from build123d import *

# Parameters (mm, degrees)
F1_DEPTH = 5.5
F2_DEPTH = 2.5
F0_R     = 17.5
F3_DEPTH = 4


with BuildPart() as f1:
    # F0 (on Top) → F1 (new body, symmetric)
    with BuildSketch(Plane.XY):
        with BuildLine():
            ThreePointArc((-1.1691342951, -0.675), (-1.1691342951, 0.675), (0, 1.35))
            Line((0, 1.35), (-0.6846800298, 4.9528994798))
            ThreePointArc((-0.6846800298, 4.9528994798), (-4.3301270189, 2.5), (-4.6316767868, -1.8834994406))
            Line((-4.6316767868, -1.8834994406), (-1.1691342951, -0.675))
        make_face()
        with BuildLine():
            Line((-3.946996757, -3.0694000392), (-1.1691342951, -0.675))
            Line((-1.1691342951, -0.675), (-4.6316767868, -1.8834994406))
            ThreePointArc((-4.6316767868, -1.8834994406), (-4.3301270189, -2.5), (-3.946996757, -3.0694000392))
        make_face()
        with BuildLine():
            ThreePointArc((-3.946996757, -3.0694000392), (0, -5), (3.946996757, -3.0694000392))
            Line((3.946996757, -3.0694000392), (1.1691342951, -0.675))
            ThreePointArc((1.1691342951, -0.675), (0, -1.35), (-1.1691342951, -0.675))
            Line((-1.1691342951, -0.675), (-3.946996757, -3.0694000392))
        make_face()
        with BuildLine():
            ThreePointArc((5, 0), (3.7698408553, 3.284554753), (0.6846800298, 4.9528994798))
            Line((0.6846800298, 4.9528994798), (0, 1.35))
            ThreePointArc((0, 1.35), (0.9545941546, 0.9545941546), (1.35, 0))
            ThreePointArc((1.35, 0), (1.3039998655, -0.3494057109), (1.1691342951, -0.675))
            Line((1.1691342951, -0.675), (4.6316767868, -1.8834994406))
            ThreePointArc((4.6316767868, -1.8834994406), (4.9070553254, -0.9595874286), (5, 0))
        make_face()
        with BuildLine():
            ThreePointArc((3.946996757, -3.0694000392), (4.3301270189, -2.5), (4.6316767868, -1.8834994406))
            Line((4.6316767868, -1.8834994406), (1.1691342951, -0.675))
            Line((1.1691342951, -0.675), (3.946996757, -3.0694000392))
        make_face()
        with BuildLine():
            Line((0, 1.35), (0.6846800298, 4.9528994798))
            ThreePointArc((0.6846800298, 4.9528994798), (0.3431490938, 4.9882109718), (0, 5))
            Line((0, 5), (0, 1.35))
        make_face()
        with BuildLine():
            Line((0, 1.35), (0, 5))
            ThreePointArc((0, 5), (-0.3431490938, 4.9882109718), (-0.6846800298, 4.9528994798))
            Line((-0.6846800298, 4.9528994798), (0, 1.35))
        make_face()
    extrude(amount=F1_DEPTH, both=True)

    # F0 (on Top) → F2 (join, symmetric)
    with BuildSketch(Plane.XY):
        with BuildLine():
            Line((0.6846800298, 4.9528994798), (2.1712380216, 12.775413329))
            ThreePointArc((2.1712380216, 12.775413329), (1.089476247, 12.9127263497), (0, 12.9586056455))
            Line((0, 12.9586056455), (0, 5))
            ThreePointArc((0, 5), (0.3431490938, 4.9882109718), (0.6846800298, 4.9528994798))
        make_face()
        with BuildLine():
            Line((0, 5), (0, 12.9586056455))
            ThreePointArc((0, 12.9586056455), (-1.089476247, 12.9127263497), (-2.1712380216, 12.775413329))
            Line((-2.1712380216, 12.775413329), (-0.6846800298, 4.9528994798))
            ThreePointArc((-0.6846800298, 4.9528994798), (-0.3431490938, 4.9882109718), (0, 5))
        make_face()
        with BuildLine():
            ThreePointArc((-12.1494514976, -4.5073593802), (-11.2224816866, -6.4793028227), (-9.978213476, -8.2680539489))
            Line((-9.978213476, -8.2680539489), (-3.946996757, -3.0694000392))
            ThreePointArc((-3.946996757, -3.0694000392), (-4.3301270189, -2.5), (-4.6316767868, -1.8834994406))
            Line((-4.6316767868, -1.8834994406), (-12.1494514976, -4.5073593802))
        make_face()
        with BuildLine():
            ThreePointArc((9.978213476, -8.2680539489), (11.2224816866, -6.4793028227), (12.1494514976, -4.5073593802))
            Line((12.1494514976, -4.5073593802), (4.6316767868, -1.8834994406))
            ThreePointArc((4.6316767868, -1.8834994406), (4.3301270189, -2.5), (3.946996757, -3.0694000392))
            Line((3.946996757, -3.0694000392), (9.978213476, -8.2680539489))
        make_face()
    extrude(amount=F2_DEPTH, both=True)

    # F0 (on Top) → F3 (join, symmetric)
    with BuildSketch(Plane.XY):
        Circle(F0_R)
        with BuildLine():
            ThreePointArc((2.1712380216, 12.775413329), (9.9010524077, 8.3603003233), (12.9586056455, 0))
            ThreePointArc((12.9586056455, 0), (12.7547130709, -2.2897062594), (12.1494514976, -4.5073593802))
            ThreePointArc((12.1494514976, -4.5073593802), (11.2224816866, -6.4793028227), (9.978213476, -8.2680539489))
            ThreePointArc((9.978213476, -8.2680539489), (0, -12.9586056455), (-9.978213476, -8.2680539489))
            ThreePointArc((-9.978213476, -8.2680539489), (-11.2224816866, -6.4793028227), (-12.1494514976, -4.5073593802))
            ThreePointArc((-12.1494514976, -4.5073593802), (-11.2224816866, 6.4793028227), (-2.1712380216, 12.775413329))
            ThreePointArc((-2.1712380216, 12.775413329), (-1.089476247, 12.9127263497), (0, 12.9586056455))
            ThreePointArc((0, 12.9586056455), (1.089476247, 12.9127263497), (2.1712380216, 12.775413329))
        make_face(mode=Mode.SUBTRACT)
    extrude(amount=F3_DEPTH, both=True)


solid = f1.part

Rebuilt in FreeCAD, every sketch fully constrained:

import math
import FreeCAD as App
import Part
import Sketcher
from FreeCAD import Vector

doc = App.newDocument("Part")
params = doc.addObject("Spreadsheet::Sheet", "Params")
for row, (alias, value) in enumerate([
    ("sketch1_radius", "5 mm"),
    ("sketch1_radius2", "1.35 mm"),
    ("pad1_length", "11 mm"),
    ("sketch2_radius", "5 mm"),
    ("pad2_length", "5 mm"),
    ("sketch3_diameter", "35 mm"),
    ("pad3_length", "8 mm"),
], start=1):
    params.set(f"A{row}", alias)
    params.set(f"B{row}", "=" + value)
    params.setAlias(f"B{row}", alias)

body = doc.addObject("PartDesign::Body", "Body")

# Sketch on XY plane
sketch1 = doc.addObject("Sketcher::SketchObject", "Sketch")
body.addObject(sketch1)
sketch1.AttachmentSupport = (doc.XY_Plane, [""])
sketch1.MapMode = "FlatFace"
sketch1.addGeometry([
    Part.ArcOfCircle(Part.Circle(Vector(0, 0, 0), Vector(0, 0, 1), 5), math.radians(82.13), math.radians(90)),  # 0
    Part.ArcOfCircle(Part.Circle(Vector(0, 0, 0), Vector(0, 0, 1), 5), math.radians(90), math.radians(97.87)),  # 1
    Part.ArcOfCircle(Part.Circle(Vector(0, 0, 0), Vector(0, 0, 1), 5), math.radians(98), math.radians(202)),  # 2
    Part.ArcOfCircle(Part.Circle(Vector(0, 0, 0), Vector(0, 0, 1), 5), math.radians(-157.87), math.radians(-142.13)),  # 3
    Part.ArcOfCircle(Part.Circle(Vector(0, 0, 0), Vector(0, 0, 1), 5), math.radians(-142), math.radians(-38)),  # 4
    Part.ArcOfCircle(Part.Circle(Vector(0, 0, 0), Vector(0, 0, 1), 5), math.radians(-37.87), math.radians(-22.13)),  # 5
    Part.ArcOfCircle(Part.Circle(Vector(0, 0, 0), Vector(0, 0, 1), 5), math.radians(-22), math.radians(0)),  # 6
    Part.ArcOfCircle(Part.Circle(Vector(0, 0, 0), Vector(0, 0, 1), 5), math.radians(0), math.radians(82)),  # 7
    Part.ArcOfCircle(Part.Circle(Vector(0, 0, 0), Vector(0, 0, 1), 1.4), math.radians(90), math.radians(210)),  # 8
    Part.ArcOfCircle(Part.Circle(Vector(0, 0, 0), Vector(0, 0, 1), 1.4), math.radians(0), math.radians(90)),  # 9
    Part.ArcOfCircle(Part.Circle(Vector(0, 0, 0), Vector(0, 0, 1), 1.4), math.radians(-30), math.radians(0)),  # 10
    Part.ArcOfCircle(Part.Circle(Vector(0, 0, 0), Vector(0, 0, 1), 1.4), math.radians(-150), math.radians(-30)),  # 11
], False)
sketch1.addConstraint([
    Sketcher.Constraint("Tangent", 0, 2, 1, 1),
    Sketcher.Constraint("Tangent", 1, 2, 2, 1),
    Sketcher.Constraint("Tangent", 2, 2, 3, 1),
    Sketcher.Constraint("Tangent", 3, 2, 4, 1),
    Sketcher.Constraint("Tangent", 4, 2, 5, 1),
    Sketcher.Constraint("Tangent", 5, 2, 6, 1),
    Sketcher.Constraint("Tangent", 6, 2, 7, 1),
    Sketcher.Constraint("Tangent", 7, 2, 0, 1),
    Sketcher.Constraint("Tangent", 8, 1, 9, 2),
    Sketcher.Constraint("Tangent", 9, 1, 10, 2),
    Sketcher.Constraint("Tangent", 10, 1, 11, 2),
    Sketcher.Constraint("Tangent", 11, 1, 8, 2),
    Sketcher.Constraint("Coincident", 0, 3, -1, 1),
    Sketcher.Constraint("Coincident", 2, 3, -1, 1),
    Sketcher.Constraint("Coincident", 4, 3, -1, 1),
    Sketcher.Constraint("Coincident", 8, 3, -1, 1),
    Sketcher.Constraint("Equal", 4, 5),
    Sketcher.Constraint("Equal", 8, 9),
    Sketcher.Constraint("PointOnObject", 0, 2, -2),
    Sketcher.Constraint("PointOnObject", 6, 2, -1),
    Sketcher.Constraint("PointOnObject", 8, 1, -2),
    Sketcher.Constraint("PointOnObject", 9, 1, -1),
    Sketcher.Constraint("Horizontal", 3, 2, 4, 2),
    Sketcher.Constraint("Horizontal", 2, 2, 5, 2),
    Sketcher.Constraint("Horizontal", 1, 2, 7, 2),
    Sketcher.Constraint("Horizontal", 10, 1, 11, 1),
    Sketcher.Constraint("Radius", 0, 5.0),
    Sketcher.Constraint("Radius", 8, 1.35),
    Sketcher.Constraint("DistanceY", 10, 1, -1, 1, 0.675),
    Sketcher.Constraint("DistanceY", -1, 1, 1, 2, 4.952899),
    Sketcher.Constraint("DistanceY", 2, 2, -1, 1, 1.883499),
    Sketcher.Constraint("DistanceY", 3, 2, -1, 1, 3.0694),
])
sketch1.setExpression("Constraints[26]", "Params.sketch1_radius")
sketch1.setExpression("Constraints[27]", "Params.sketch1_radius2")
pad1 = doc.addObject("PartDesign::Pad", "Pad")
body.addObject(pad1)
pad1.Profile = sketch1
pad1.setExpression("Length", "Params.pad1_length")
pad1.Midplane = True

# Sketch on XY plane
sketch2 = doc.addObject("Sketcher::SketchObject", "Sketch001")
body.addObject(sketch2)
sketch2.AttachmentSupport = (doc.XY_Plane, [""])
sketch2.MapMode = "FlatFace"
sketch2.addGeometry([
    Part.LineSegment(Vector(0.7, 5, 0), Vector(2.2, 12.8, 0)),  # 0
    Part.ArcOfCircle(Part.Circle(Vector(0, 0, 0), Vector(0, 0, 1), 13), math.radians(80.35), math.radians(90)),  # 1
    Part.ArcOfCircle(Part.Circle(Vector(0, 0, 0), Vector(0, 0, 1), 13), math.radians(90), math.radians(99.65)),  # 2
    Part.LineSegment(Vector(-2.2, 12.8, 0), Vector(-0.7, 5, 0)),  # 3
    Part.ArcOfCircle(Part.Circle(Vector(0, 0, 0), Vector(0, 0, 1), 5), math.radians(90), math.radians(97.87)),  # 4
    Part.ArcOfCircle(Part.Circle(Vector(0, 0, 0), Vector(0, 0, 1), 5), math.radians(82.13), math.radians(90)),  # 5
    Part.ArcOfCircle(Part.Circle(Vector(0, 0, 0), Vector(0, 0, 1), 13), math.radians(-159.65), math.radians(-140.35)),  # 6
    Part.LineSegment(Vector(-10, -8.3, 0), Vector(-3.9, -3.1, 0)),  # 7
    Part.ArcOfCircle(Part.Circle(Vector(0, 0, 0), Vector(0, 0, 1), 5), math.radians(-157.87), math.radians(-142.13)),  # 8
    Part.LineSegment(Vector(-4.6, -1.9, 0), Vector(-12.1, -4.5, 0)),  # 9
    Part.ArcOfCircle(Part.Circle(Vector(0, 0, 0), Vector(0, 0, 1), 13), math.radians(-39.65), math.radians(-20.35)),  # 10
    Part.LineSegment(Vector(12.1, -4.5, 0), Vector(4.6, -1.9, 0)),  # 11
    Part.ArcOfCircle(Part.Circle(Vector(0, 0, 0), Vector(0, 0, 1), 5), math.radians(-37.87), math.radians(-22.13)),  # 12
    Part.LineSegment(Vector(3.9, -3.1, 0), Vector(10, -8.3, 0)),  # 13
], False)
sketch2.addConstraint([
    Sketcher.Constraint("Coincident", 0, 2, 1, 1),
    Sketcher.Constraint("Tangent", 1, 2, 2, 1),
    Sketcher.Constraint("Coincident", 2, 2, 3, 1),
    Sketcher.Constraint("Coincident", 3, 2, 4, 2),
    Sketcher.Constraint("Tangent", 4, 1, 5, 2),
    Sketcher.Constraint("Coincident", 5, 1, 0, 1),
    Sketcher.Constraint("Coincident", 6, 2, 7, 1),
    Sketcher.Constraint("Coincident", 7, 2, 8, 2),
    Sketcher.Constraint("Coincident", 8, 1, 9, 1),
    Sketcher.Constraint("Coincident", 9, 2, 6, 1),
    Sketcher.Constraint("Coincident", 10, 2, 11, 1),
    Sketcher.Constraint("Coincident", 11, 2, 12, 2),
    Sketcher.Constraint("Coincident", 12, 1, 13, 1),
    Sketcher.Constraint("Coincident", 13, 2, 10, 1),
    Sketcher.Constraint("Coincident", 1, 3, -1, 1),
    Sketcher.Constraint("Coincident", 4, 3, -1, 1),
    Sketcher.Constraint("Coincident", 6, 3, -1, 1),
    Sketcher.Constraint("Coincident", 8, 3, -1, 1),
    Sketcher.Constraint("Coincident", 10, 3, -1, 1),
    Sketcher.Constraint("Coincident", 12, 3, -1, 1),
    Sketcher.Constraint("Equal", 1, 2),
    Sketcher.Constraint("Equal", 4, 5),
    Sketcher.Constraint("Equal", 2, 6),
    Sketcher.Constraint("Equal", 5, 8),
    Sketcher.Constraint("Equal", 6, 10),
    Sketcher.Constraint("Equal", 8, 12),
    Sketcher.Constraint("PointOnObject", 1, 2, -2),
    Sketcher.Constraint("PointOnObject", 4, 1, -2),
    Sketcher.Constraint("Horizontal", 0, 2, 2, 2),
    Sketcher.Constraint("Horizontal", 3, 2, 5, 1),
    Sketcher.Constraint("Horizontal", 9, 2, 10, 2),
    Sketcher.Constraint("Horizontal", 8, 1, 11, 2),
    Sketcher.Constraint("Horizontal", 7, 2, 12, 1),
    Sketcher.Constraint("Horizontal", 6, 2, 13, 2),
    Sketcher.Constraint("Equal", 3, 7),
    Sketcher.Constraint("Equal", 7, 9),
    Sketcher.Constraint("Radius", 4, 5.0),
    Sketcher.Constraint("Radius", 1, 12.958606),
    Sketcher.Constraint("DistanceY", -1, 1, 3, 2, 4.952899),
    Sketcher.Constraint("DistanceY", 7, 2, -1, 1, 3.0694),
    Sketcher.Constraint("DistanceY", 8, 1, -1, 1, 1.883499),
    Sketcher.Constraint("Distance", 0, 7.962511),
])
sketch2.setExpression("Constraints[36]", "Params.sketch2_radius")
pad2 = doc.addObject("PartDesign::Pad", "Pad001")
body.addObject(pad2)
pad2.Profile = sketch2
pad2.setExpression("Length", "Params.pad2_length")
pad2.Midplane = True

# Sketch on XY plane
sketch3 = doc.addObject("Sketcher::SketchObject", "Sketch002")
body.addObject(sketch3)
sketch3.AttachmentSupport = (doc.XY_Plane, [""])
sketch3.MapMode = "FlatFace"
sketch3.addGeometry([
    Part.Circle(Vector(0, 0, 0), Vector(0, 0, 1), 17.5),  # 0
    Part.ArcOfCircle(Part.Circle(Vector(0, 0, 0), Vector(0, 0, 1), 13), math.radians(80.35), math.radians(90)),  # 1
    Part.ArcOfCircle(Part.Circle(Vector(0, 0, 0), Vector(0, 0, 1), 13), math.radians(0), math.radians(80)),  # 2
    Part.ArcOfCircle(Part.Circle(Vector(0, 0, 0), Vector(0, 0, 1), 13), math.radians(-20), math.radians(0)),  # 3
    Part.ArcOfCircle(Part.Circle(Vector(0, 0, 0), Vector(0, 0, 1), 13), math.radians(-39.65), math.radians(-20.35)),  # 4
    Part.ArcOfCircle(Part.Circle(Vector(0, 0, 0), Vector(0, 0, 1), 13), math.radians(-140), math.radians(-40)),  # 5
    Part.ArcOfCircle(Part.Circle(Vector(0, 0, 0), Vector(0, 0, 1), 13), math.radians(-159.65), math.radians(-140.35)),  # 6
    Part.ArcOfCircle(Part.Circle(Vector(0, 0, 0), Vector(0, 0, 1), 13), math.radians(100), math.radians(200)),  # 7
    Part.ArcOfCircle(Part.Circle(Vector(0, 0, 0), Vector(0, 0, 1), 13), math.radians(90), math.radians(99.65)),  # 8
], False)
sketch3.addConstraint([
    Sketcher.Constraint("Tangent", 1, 1, 2, 2),
    Sketcher.Constraint("Tangent", 2, 1, 3, 2),
    Sketcher.Constraint("Tangent", 3, 1, 4, 2),
    Sketcher.Constraint("Tangent", 4, 1, 5, 2),
    Sketcher.Constraint("Tangent", 5, 1, 6, 2),
    Sketcher.Constraint("Tangent", 6, 1, 7, 2),
    Sketcher.Constraint("Tangent", 7, 1, 8, 2),
    Sketcher.Constraint("Tangent", 8, 1, 1, 2),
    Sketcher.Constraint("Coincident", 0, 3, -1, 1),
    Sketcher.Constraint("Coincident", 1, 3, -1, 1),
    Sketcher.Constraint("Coincident", 3, 3, -1, 1),
    Sketcher.Constraint("Coincident", 5, 3, -1, 1),
    Sketcher.Constraint("Equal", 5, 6),
    Sketcher.Constraint("PointOnObject", 2, 1, -1),
    Sketcher.Constraint("PointOnObject", 8, 1, -2),
    Sketcher.Constraint("Horizontal", 4, 1, 5, 1),
    Sketcher.Constraint("Horizontal", 3, 1, 6, 1),
    Sketcher.Constraint("Horizontal", 1, 1, 7, 1),
    Sketcher.Constraint("Diameter", 0, 35.0),
    Sketcher.Constraint("Radius", 1, 12.958606),
    Sketcher.Constraint("DistanceX", -1, 1, 1, 1, 2.171238),
    Sketcher.Constraint("DistanceX", -1, 1, 3, 1, 12.149451),
    Sketcher.Constraint("DistanceX", 4, 1, 3, 1, 2.171238),
])
sketch3.setExpression("Constraints[18]", "Params.sketch3_diameter")
pad3 = doc.addObject("PartDesign::Pad", "Pad002")
body.addObject(pad3)
pad3.Profile = sketch3
pad3.setExpression("Length", "Params.pad3_length")
pad3.Midplane = True

doc.recompute()
